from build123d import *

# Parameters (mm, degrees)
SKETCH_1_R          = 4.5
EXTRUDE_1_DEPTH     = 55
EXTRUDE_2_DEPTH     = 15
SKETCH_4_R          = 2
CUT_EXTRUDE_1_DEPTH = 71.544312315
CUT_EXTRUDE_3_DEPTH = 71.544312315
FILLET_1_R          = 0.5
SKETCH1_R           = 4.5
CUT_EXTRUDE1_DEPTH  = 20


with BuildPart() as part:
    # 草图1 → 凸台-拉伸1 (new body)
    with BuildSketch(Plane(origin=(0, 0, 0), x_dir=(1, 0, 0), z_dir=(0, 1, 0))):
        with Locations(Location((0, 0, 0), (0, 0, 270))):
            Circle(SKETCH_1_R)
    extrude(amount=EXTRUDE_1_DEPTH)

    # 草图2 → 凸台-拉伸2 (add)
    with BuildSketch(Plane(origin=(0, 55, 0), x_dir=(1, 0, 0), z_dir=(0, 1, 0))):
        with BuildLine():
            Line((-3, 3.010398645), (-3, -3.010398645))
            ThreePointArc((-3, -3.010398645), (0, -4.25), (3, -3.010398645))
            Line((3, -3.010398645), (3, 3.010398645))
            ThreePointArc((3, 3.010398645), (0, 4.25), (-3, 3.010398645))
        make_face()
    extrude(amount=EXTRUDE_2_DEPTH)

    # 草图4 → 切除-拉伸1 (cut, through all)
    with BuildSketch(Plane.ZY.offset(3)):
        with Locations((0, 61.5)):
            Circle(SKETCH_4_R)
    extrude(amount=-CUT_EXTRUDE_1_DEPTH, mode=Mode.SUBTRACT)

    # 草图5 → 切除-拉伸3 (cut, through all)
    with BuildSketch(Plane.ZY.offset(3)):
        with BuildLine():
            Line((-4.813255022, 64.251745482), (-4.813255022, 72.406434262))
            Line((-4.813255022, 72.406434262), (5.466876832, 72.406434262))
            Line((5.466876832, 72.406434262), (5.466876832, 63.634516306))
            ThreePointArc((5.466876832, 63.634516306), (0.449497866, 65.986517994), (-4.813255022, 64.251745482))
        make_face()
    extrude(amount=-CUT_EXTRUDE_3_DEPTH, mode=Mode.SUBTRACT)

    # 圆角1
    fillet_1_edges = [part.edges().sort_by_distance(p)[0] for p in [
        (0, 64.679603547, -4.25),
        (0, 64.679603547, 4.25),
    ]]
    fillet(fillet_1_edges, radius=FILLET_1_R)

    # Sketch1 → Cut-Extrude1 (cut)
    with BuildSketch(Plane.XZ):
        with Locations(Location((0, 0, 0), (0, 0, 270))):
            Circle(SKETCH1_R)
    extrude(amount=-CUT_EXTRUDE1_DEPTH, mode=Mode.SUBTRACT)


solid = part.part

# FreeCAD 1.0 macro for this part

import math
import FreeCAD as App
import Part
import Sketcher
Q = App.Units.Quantity


def edges_at(feature, points):
    """Names of the edges that pass closest to the given points."""
    edges = feature.Shape.Edges
    near = lambda p: min(range(len(edges)), key=lambda i: edges[i].distToShape(Part.Vertex(*p))[0])
    return sorted({f"Edge{near(p) + 1}" for p in points})

doc = App.newDocument("Part")
body = doc.addObject("PartDesign::Body", "Body")

sketch1 = doc.addObject("Sketcher::SketchObject", "Sketch")
body.addObject(sketch1)
sketch1.AttachmentSupport = (doc.XZ_Plane, [""])
sketch1.MapMode = "FlatFace"
sketch1.addGeometry(Part.Circle(App.Vector(0, 0, 0), App.Vector(0, 0, 1), 4.5), False)
sketch1.addConstraint(Sketcher.Constraint("Coincident", 0, 3, -1, 1))
sketch1.addConstraint(Sketcher.Constraint("Diameter", 0, Q("9 mm")))
pad1 = doc.addObject("PartDesign::Pad", "Pad")
body.addObject(pad1)
pad1.Profile = sketch1
pad1.Length = 55
pad1.Reversed = True

sketch2 = doc.addObject("Sketcher::SketchObject", "Sketch001")
body.addObject(sketch2)
sketch2.AttachmentSupport = (doc.XZ_Plane, [""])
sketch2.MapMode = "FlatFace"
sketch2.AttachmentOffset = App.Placement(App.Vector(0, 0, -55), App.Rotation())
sketch2.addGeometry(Part.LineSegment(App.Vector(-3, -3, 0), App.Vector(-3, 3, 0)), False)
sketch2.addGeometry(Part.ArcOfCircle(Part.Circle(App.Vector(0, 0, 0), App.Vector(0, 0, 1), 4.3), math.radians(45), math.radians(135)), False)
sketch2.addGeometry(Part.LineSegment(App.Vector(3, 3, 0), App.Vector(3, -3, 0)), False)
sketch2.addGeometry(Part.ArcOfCircle(Part.Circle(App.Vector(0, 0, 0), App.Vector(0, 0, 1), 4.3), math.radians(-135), math.radians(-45)), False)
sketch2.addConstraint(Sketcher.Constraint("Coincident", 0, 2, 1, 2))
sketch2.addConstraint(Sketcher.Constraint("Coincident", 1, 1, 2, 1))
sketch2.addConstraint(Sketcher.Constraint("Coincident", 2, 2, 3, 2))
sketch2.addConstraint(Sketcher.Constraint("Coincident", 3, 1, 0, 1))
sketch2.addConstraint(Sketcher.Constraint("Vertical", 0))
sketch2.addConstraint(Sketcher.Constraint("Vertical", 2))
sketch2.addConstraint(Sketcher.Constraint("Coincident", 1, 3, -1, 1))
sketch2.addConstraint(Sketcher.Constraint("Coincident", 3, 3, -1, 1))
sketch2.addConstraint(Sketcher.Constraint("Equal", 1, 3))
sketch2.addConstraint(Sketcher.Constraint("Horizontal", 0, 2, 1, 1))
sketch2.addConstraint(Sketcher.Constraint("Radius", 1, Q("4.25 mm")))
sketch2.addConstraint(Sketcher.Constraint("DistanceX", 0, 2, -1, 1, Q("3 mm")))
pad2 = doc.addObject("PartDesign::Pad", "Pad001")
body.addObject(pad2)
pad2.Profile = sketch2
pad2.Length = 15
pad2.Reversed = True

sketch3 = doc.addObject("Sketcher::SketchObject", "Sketch002")
body.addObject(sketch3)
sketch3.AttachmentSupport = (doc.YZ_Plane, [""])
sketch3.MapMode = "FlatFace"
sketch3.AttachmentOffset = App.Placement(App.Vector(0, 0, -3), App.Rotation())
sketch3.addGeometry(Part.Circle(App.Vector(61.5, 0, 0), App.Vector(0, 0, 1), 2), False)
sketch3.addConstraint(Sketcher.Constraint("PointOnObject", 0, 3, -1))
sketch3.addConstraint(Sketcher.Constraint("Diameter", 0, Q("4 mm")))
sketch3.addConstraint(Sketcher.Constraint("DistanceX", -1, 1, 0, 3, Q("61.5 mm")))
pocket1 = doc.addObject("PartDesign::Pocket", "Pocket")
body.addObject(pocket1)
pocket1.Profile = sketch3
pocket1.Type = "ThroughAll"
pocket1.Reversed = True

sketch4 = doc.addObject("Sketcher::SketchObject", "Sketch003")
body.addObject(sketch4)
sketch4.AttachmentSupport = (doc.YZ_Plane, [""])
sketch4.MapMode = "FlatFace"
sketch4.AttachmentOffset = App.Placement(App.Vector(0, 0, -3), App.Rotation())
sketch4.addGeometry(Part.LineSegment(App.Vector(72, -5, 0), App.Vector(64, -5, 0)), False)
sketch4.addGeometry(Part.ArcOfCircle(Part.Circle(App.Vector(59, 0, 0), App.Vector(0, 0, 1), 7), math.radians(-40), math.radians(47)), False)
sketch4.addGeometry(Part.LineSegment(App.Vector(64, 5, 0), App.Vector(72, 5, 0)), False)
sketch4.addGeometry(Part.LineSegment(App.Vector(72, 5, 0), App.Vector(72, -5, 0)), False)
sketch4.addConstraint(Sketcher.Constraint("Coincident", 0, 2, 1, 1))
sketch4.addConstraint(Sketcher.Constraint("Coincident", 1, 2, 2, 1))
sketch4.addConstraint(Sketcher.Constraint("Coincident", 2, 2, 3, 1))
sketch4.addConstraint(Sketcher.Constraint("Coincident", 3, 2, 0, 1))
sketch4.addConstraint(Sketcher.Constraint("Horizontal", 0))
sketch4.addConstraint(Sketcher.Constraint("Horizontal", 2))
sketch4.addConstraint(Sketcher.Constraint("Vertical", 3))
sketch4.addConstraint(Sketcher.Constraint("PointOnObject", 1, 3, -1))
sketch4.addConstraint(Sketcher.Constraint("Radius", 1, Q("7.5 mm")))
sketch4.addConstraint(Sketcher.Constraint("DistanceX", -1, 1, 1, 3, Q("58.5 mm")))
sketch4.addConstraint(Sketcher.Constraint("DistanceX", 0, 2, 0, 1, Q("8.154689 mm")))
sketch4.addConstraint(Sketcher.Constraint("DistanceY", 3, 2, 3, 1, Q("10.280132 mm")))
sketch4.addConstraint(Sketcher.Constraint("DistanceX", 2, 1, 2, 2, Q("8.771918 mm")))
pocket2 = doc.addObject("PartDesign::Pocket", "Pocket001")
body.addObject(pocket2)
pocket2.Profile = sketch4
pocket2.Type = "ThroughAll"
pocket2.Reversed = True
doc.recompute()

fillet = doc.addObject("PartDesign::Fillet", "Fillet")
body.addObject(fillet)
fillet.Base = (pocket2, edges_at(pocket2, [(0, 64.68, -4.25), (0, 64.68, 4.25)]))
fillet.Radius = 0.5

sketch5 = doc.addObject("Sketcher::SketchObject", "Sketch004")
body.addObject(sketch5)
sketch5.AttachmentSupport = (doc.XZ_Plane, [""])
sketch5.MapMode = "FlatFace"
sketch5.addGeometry(Part.Circle(App.Vector(0, 0, 0), App.Vector(0, 0, 1), 4.5), False)
sketch5.addConstraint(Sketcher.Constraint("Coincident", 0, 3, -1, 1))
sketch5.addConstraint(Sketcher.Constraint("Diameter", 0, Q("9 mm")))
pocket3 = doc.addObject("PartDesign::Pocket", "Pocket002")
body.addObject(pocket3)
pocket3.Profile = sketch5
pocket3.Length = 20

doc.recompute()
